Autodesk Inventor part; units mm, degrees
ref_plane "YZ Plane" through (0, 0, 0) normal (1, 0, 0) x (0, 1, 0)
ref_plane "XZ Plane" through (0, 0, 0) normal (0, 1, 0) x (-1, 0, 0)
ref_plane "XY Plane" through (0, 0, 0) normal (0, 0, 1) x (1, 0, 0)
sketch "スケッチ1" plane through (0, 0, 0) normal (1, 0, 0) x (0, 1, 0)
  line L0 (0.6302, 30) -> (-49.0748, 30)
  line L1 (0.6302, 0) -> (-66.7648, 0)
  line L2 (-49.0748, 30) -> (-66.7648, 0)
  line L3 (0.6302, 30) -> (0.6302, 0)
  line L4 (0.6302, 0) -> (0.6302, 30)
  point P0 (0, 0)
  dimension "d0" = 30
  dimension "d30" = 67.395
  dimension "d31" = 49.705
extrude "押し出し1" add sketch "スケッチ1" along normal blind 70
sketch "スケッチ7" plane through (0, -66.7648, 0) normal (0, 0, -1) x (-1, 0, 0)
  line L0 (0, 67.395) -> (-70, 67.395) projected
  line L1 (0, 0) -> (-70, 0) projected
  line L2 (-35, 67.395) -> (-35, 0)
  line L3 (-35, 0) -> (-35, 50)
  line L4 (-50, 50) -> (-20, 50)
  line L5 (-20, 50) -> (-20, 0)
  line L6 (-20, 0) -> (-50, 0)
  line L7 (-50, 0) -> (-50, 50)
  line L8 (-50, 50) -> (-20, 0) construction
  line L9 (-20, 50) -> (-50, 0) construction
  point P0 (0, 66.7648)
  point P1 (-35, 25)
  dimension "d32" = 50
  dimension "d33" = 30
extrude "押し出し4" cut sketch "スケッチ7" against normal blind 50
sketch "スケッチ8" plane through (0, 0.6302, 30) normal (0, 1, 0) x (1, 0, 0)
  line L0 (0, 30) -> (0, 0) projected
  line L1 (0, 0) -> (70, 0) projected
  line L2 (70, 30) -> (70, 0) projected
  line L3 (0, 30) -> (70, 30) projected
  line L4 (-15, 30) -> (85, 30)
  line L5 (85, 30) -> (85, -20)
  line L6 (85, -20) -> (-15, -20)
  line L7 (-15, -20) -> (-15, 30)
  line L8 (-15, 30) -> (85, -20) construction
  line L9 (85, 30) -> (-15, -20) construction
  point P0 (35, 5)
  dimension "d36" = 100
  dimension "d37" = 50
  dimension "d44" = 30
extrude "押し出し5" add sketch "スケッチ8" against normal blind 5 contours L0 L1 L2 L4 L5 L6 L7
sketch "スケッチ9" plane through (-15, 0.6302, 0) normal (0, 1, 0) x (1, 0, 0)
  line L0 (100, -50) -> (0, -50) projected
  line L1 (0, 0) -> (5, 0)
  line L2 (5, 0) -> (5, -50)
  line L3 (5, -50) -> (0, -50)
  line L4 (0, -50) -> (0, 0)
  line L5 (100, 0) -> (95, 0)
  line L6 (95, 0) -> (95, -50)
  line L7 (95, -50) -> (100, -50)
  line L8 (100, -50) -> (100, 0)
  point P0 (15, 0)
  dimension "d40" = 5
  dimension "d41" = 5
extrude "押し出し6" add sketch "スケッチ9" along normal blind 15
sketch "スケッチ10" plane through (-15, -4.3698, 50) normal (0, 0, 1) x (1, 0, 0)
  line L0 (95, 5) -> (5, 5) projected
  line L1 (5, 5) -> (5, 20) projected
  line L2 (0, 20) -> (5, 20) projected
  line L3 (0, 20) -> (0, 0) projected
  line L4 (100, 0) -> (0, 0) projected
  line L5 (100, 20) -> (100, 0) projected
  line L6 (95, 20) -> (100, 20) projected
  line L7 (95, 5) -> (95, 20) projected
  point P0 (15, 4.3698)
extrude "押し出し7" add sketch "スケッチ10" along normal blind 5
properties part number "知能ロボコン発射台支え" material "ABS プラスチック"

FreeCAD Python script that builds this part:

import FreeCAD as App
import Part
import Sketcher

V = App.Vector

doc = App.newDocument("Part")
body = doc.addObject("PartDesign::Body", "Body")

sketch1 = body.newObject("Sketcher::SketchObject", "Sketch")
sketch1.AttachmentSupport = (doc.getObject("YZ_Plane"), [""])
sketch1.MapMode = "FlatFace"
sketch1.addGeometry(Part.LineSegment(V(1, 0, 0), V(1, 30, 0)), False)
sketch1.addGeometry(Part.LineSegment(V(1, 30, 0), V(-49, 30, 0)), False)
sketch1.addGeometry(Part.LineSegment(V(-49, 30, 0), V(-67, 0, 0)), False)
sketch1.addGeometry(Part.LineSegment(V(-67, 0, 0), V(1, 0, 0)), False)
sketch1.addConstraint(Sketcher.Constraint("Coincident", 0, 2, 1, 1))
sketch1.addConstraint(Sketcher.Constraint("Coincident", 1, 2, 2, 1))
sketch1.addConstraint(Sketcher.Constraint("Coincident", 2, 2, 3, 1))
sketch1.addConstraint(Sketcher.Constraint("Coincident", 3, 2, 0, 1))
sketch1.addConstraint(Sketcher.Constraint("Vertical", 0))
sketch1.addConstraint(Sketcher.Constraint("Horizontal", 1))
sketch1.addConstraint(Sketcher.Constraint("Horizontal", 3))
sketch1.addConstraint(Sketcher.Constraint("PointOnObject", 2, 2, -1))
sketch1.addConstraint(Sketcher.Constraint("DistanceY", 0, 1, 0, 2, 30.0))
sketch1.addConstraint(Sketcher.Constraint("DistanceX", 1, 2, 1, 1, 49.705))
sketch1.addConstraint(Sketcher.Constraint("DistanceX", 3, 1, 3, 2, 67.395))
sketch1.addConstraint(Sketcher.Constraint("DistanceX", -1, 1, 0, 2, 0.6302))
pad1 = body.newObject("PartDesign::Pad", "Pad")
pad1.Profile = sketch1
pad1.Length = 70

sketch2 = body.newObject("Sketcher::SketchObject", "Sketch001")
sketch2.AttachmentSupport = (doc.getObject("XY_Plane"), [""])
sketch2.MapMode = "FlatFace"
sketch2.addGeometry(Part.LineSegment(V(20, -67, 0), V(20, -17, 0)), False)
sketch2.addGeometry(Part.LineSegment(V(20, -17, 0), V(50, -17, 0)), False)
sketch2.addGeometry(Part.LineSegment(V(50, -17, 0), V(50, -67, 0)), False)
sketch2.addGeometry(Part.LineSegment(V(50, -67, 0), V(20, -67, 0)), False)
sketch2.addConstraint(Sketcher.Constraint("Coincident", 0, 2, 1, 1))
sketch2.addConstraint(Sketcher.Constraint("Coincident", 1, 2, 2, 1))
sketch2.addConstraint(Sketcher.Constraint("Coincident", 2, 2, 3, 1))
sketch2.addConstraint(Sketcher.Constraint("Coincident", 3, 2, 0, 1))
sketch2.addConstraint(Sketcher.Constraint("Vertical", 0))
sketch2.addConstraint(Sketcher.Constraint("Horizontal", 1))
sketch2.addConstraint(Sketcher.Constraint("Vertical", 2))
sketch2.addConstraint(Sketcher.Constraint("Horizontal", 3))
sketch2.addConstraint(Sketcher.Constraint("DistanceX", 1, 1, 1, 2, 30.0))
sketch2.addConstraint(Sketcher.Constraint("DistanceY", 0, 1, 0, 2, 50.0))
sketch2.addConstraint(Sketcher.Constraint("DistanceX", -1, 1, 1, 2, 50.0))
sketch2.addConstraint(Sketcher.Constraint("DistanceY", 0, 2, -1, 1, 16.7648))
pocket1 = body.newObject("PartDesign::Pocket", "Pocket")
pocket1.Profile = sketch2
pocket1.Length = 50
pocket1.Reversed = True

sketch3 = body.newObject("Sketcher::SketchObject", "Sketch002")
sketch3.AttachmentSupport = (doc.getObject("XZ_Plane"), [""])
sketch3.MapMode = "FlatFace"
sketch3.AttachmentOffset = App.Placement(V(0, 0, -0.6302), App.Rotation())
sketch3.addGeometry(Part.LineSegment(V(0, 30, 0), V(0, 0, 0)), False)
sketch3.addGeometry(Part.LineSegment(V(0, 0, 0), V(-15, 0, 0)), False)
sketch3.addGeometry(Part.LineSegment(V(-15, 0, 0), V(-15, 50, 0)), False)
sketch3.addGeometry(Part.LineSegment(V(-15, 50, 0), V(85, 50, 0)), False)
sketch3.addGeometry(Part.LineSegment(V(85, 50, 0), V(85, 0, 0)), False)
sketch3.addGeometry(Part.LineSegment(V(85, 0, 0), V(70, 0, 0)), False)
sketch3.addGeometry(Part.LineSegment(V(70, 0, 0), V(70, 30, 0)), False)
sketch3.addGeometry(Part.LineSegment(V(70, 30, 0), V(0, 30, 0)), False)
sketch3.addConstraint(Sketcher.Constraint("Coincident", 0, 2, 1, 1))
sketch3.addConstraint(Sketcher.Constraint("Coincident", 1, 2, 2, 1))
sketch3.addConstraint(Sketcher.Constraint("Coincident", 2, 2, 3, 1))
sketch3.addConstraint(Sketcher.Constraint("Coincident", 3, 2, 4, 1))
sketch3.addConstraint(Sketcher.Constraint("Coincident", 4, 2, 5, 1))
sketch3.addConstraint(Sketcher.Constraint("Coincident", 5, 2, 6, 1))
sketch3.addConstraint(Sketcher.Constraint("Coincident", 6, 2, 7, 1))
sketch3.addConstraint(Sketcher.Constraint("Coincident", 7, 2, 0, 1))
sketch3.addConstraint(Sketcher.Constraint("Vertical", 0))
sketch3.addConstraint(Sketcher.Constraint("Horizontal", 1))
sketch3.addConstraint(Sketcher.Constraint("Vertical", 2))
sketch3.addConstraint(Sketcher.Constraint("Horizontal", 3))
sketch3.addConstraint(Sketcher.Constraint("Vertical", 4))
sketch3.addConstraint(Sketcher.Constraint("Horizontal", 5))
sketch3.addConstraint(Sketcher.Constraint("Vertical", 6))
sketch3.addConstraint(Sketcher.Constraint("Horizontal", 7))
sketch3.addConstraint(Sketcher.Constraint("Coincident", 0, 2, -1, 1))
sketch3.addConstraint(Sketcher.Constraint("PointOnObject", 4, 2, -1))
sketch3.addConstraint(Sketcher.Constraint("Equal", 1, 5))
sketch3.addConstraint(Sketcher.Constraint("DistanceX", 3, 1, 3, 2, 100.0))
sketch3.addConstraint(Sketcher.Constraint("DistanceY", 0, 2, 0, 1, 30.0))
sketch3.addConstraint(Sketcher.Constraint("DistanceY", 2, 1, 2, 2, 50.0))
sketch3.addConstraint(Sketcher.Constraint("DistanceX", 1, 2, 1, 1, 15.0))
pad2 = body.newObject("PartDesign::Pad", "Pad001")
pad2.Profile = sketch3
pad2.Length = 5

sketch4 = body.newObject("Sketcher::SketchObject", "Sketch003")
sketch4.AttachmentSupport = (doc.getObject("XZ_Plane"), [""])
sketch4.MapMode = "FlatFace"
sketch4.AttachmentOffset = App.Placement(V(0, 0, -0.6302), App.Rotation())
sketch4.addGeometry(Part.LineSegment(V(-15, 50, 0), V(-10, 50, 0)), False)
sketch4.addGeometry(Part.LineSegment(V(-10, 50, 0), V(-10, 0, 0)), False)
sketch4.addGeometry(Part.LineSegment(V(-10, 0, 0), V(-15, 0, 0)), False)
sketch4.addGeometry(Part.LineSegment(V(-15, 0, 0), V(-15, 50, 0)), False)
sketch4.addGeometry(Part.LineSegment(V(80, 50, 0), V(85, 50, 0)), False)
sketch4.addGeometry(Part.LineSegment(V(85, 50, 0), V(85, 0, 0)), False)
sketch4.addGeometry(Part.LineSegment(V(85, 0, 0), V(80, 0, 0)), False)
sketch4.addGeometry(Part.LineSegment(V(80, 0, 0), V(80, 50, 0)), False)
sketch4.addConstraint(Sketcher.Constraint("Coincident", 0, 2, 1, 1))
sketch4.addConstraint(Sketcher.Constraint("Coincident", 1, 2, 2, 1))
sketch4.addConstraint(Sketcher.Constraint("Coincident", 2, 2, 3, 1))
sketch4.addConstraint(Sketcher.Constraint("Coincident", 3, 2, 0, 1))
sketch4.addConstraint(Sketcher.Constraint("Coincident", 4, 2, 5, 1))
sketch4.addConstraint(Sketcher.Constraint("Coincident", 5, 2, 6, 1))
sketch4.addConstraint(Sketcher.Constraint("Coincident", 6, 2, 7, 1))
sketch4.addConstraint(Sketcher.Constraint("Coincident", 7, 2, 4, 1))
sketch4.addConstraint(Sketcher.Constraint("Horizontal", 0))
sketch4.addConstraint(Sketcher.Constraint("Vertical", 1))
sketch4.addConstraint(Sketcher.Constraint("Horizontal", 2))
sketch4.addConstraint(Sketcher.Constraint("Vertical", 3))
sketch4.addConstraint(Sketcher.Constraint("Horizontal", 4))
sketch4.addConstraint(Sketcher.Constraint("Vertical", 5))
sketch4.addConstraint(Sketcher.Constraint("Horizontal", 6))
sketch4.addConstraint(Sketcher.Constraint("Vertical", 7))
sketch4.addConstraint(Sketcher.Constraint("PointOnObject", 1, 2, -1))
sketch4.addConstraint(Sketcher.Constraint("PointOnObject", 5, 2, -1))
sketch4.addConstraint(Sketcher.Constraint("Horizontal", 3, 2, 4, 2))
sketch4.addConstraint(Sketcher.Constraint("Equal", 2, 4))
sketch4.addConstraint(Sketcher.Constraint("DistanceX", 0, 1, 0, 2, 5.0))
sketch4.addConstraint(Sketcher.Constraint("DistanceY", 1, 2, 1, 1, 50.0))
sketch4.addConstraint(Sketcher.Constraint("DistanceX", 0, 2, -1, 1, 10.0))
sketch4.addConstraint(Sketcher.Constraint("DistanceX", -1, 1, 4, 2, 85.0))
pad3 = body.newObject("PartDesign::Pad", "Pad002")
pad3.Profile = sketch4
pad3.Length = 15
pad3.Reversed = True

sketch5 = body.newObject("Sketcher::SketchObject", "Sketch004")
sketch5.AttachmentSupport = (doc.getObject("XY_Plane"), [""])
sketch5.MapMode = "FlatFace"
sketch5.AttachmentOffset = App.Placement(V(0, 0, 50), App.Rotation())
sketch5.addGeometry(Part.LineSegment(V(80, 16, 0), V(80, 1, 0)), False)
sketch5.addGeometry(Part.LineSegment(V(80, 1, 0), V(-10, 1, 0)), False)
sketch5.addGeometry(Part.LineSegment(V(-10, 1, 0), V(-10, 16, 0)), False)
sketch5.addGeometry(Part.LineSegment(V(-10, 16, 0), V(-15, 16, 0)), False)
sketch5.addGeometry(Part.LineSegment(V(-15, 16, 0), V(-15, -4, 0)), False)
sketch5.addGeometry(Part.LineSegment(V(-15, -4, 0), V(85, -4, 0)), False)
sketch5.addGeometry(Part.LineSegment(V(85, -4, 0), V(85, 16, 0)), False)
sketch5.addGeometry(Part.LineSegment(V(85, 16, 0), V(80, 16, 0)), False)
sketch5.addConstraint(Sketcher.Constraint("Coincident", 0, 2, 1, 1))
sketch5.addConstraint(Sketcher.Constraint("Coincident", 1, 2, 2, 1))
sketch5.addConstraint(Sketcher.Constraint("Coincident", 2, 2, 3, 1))
sketch5.addConstraint(Sketcher.Constraint("Coincident", 3, 2, 4, 1))
sketch5.addConstraint(Sketcher.Constraint("Coincident", 4, 2, 5, 1))
sketch5.addConstraint(Sketcher.Constraint("Coincident", 5, 2, 6, 1))
sketch5.addConstraint(Sketcher.Constraint("Coincident", 6, 2, 7, 1))
sketch5.addConstraint(Sketcher.Constraint("Coincident", 7, 2, 0, 1))
sketch5.addConstraint(Sketcher.Constraint("Vertical", 0))
sketch5.addConstraint(Sketcher.Constraint("Horizontal", 1))
sketch5.addConstraint(Sketcher.Constraint("Vertical", 2))
sketch5.addConstraint(Sketcher.Constraint("Horizontal", 3))
sketch5.addConstraint(Sketcher.Constraint("Vertical", 4))
sketch5.addConstraint(Sketcher.Constraint("Horizontal", 5))
sketch5.addConstraint(Sketcher.Constraint("Vertical", 6))
sketch5.addConstraint(Sketcher.Constraint("Horizontal", 7))
sketch5.addConstraint(Sketcher.Constraint("Horizontal", 3, 2, 6, 2))
sketch5.addConstraint(Sketcher.Constraint("Equal", 3, 7))
sketch5.addConstraint(Sketcher.Constraint("DistanceX", 1, 2, 1, 1, 90.0))
sketch5.addConstraint(Sketcher.Constraint("DistanceX", 3, 2, 3, 1, 5.0))
sketch5.addConstraint(Sketcher.Constraint("DistanceY", 0, 2, 0, 1, 15.0))
sketch5.addConstraint(Sketcher.Constraint("DistanceY", 4, 2, 4, 1, 20.0))
sketch5.addConstraint(Sketcher.Constraint("DistanceX", -1, 1, 0, 2, 80.0))
sketch5.addConstraint(Sketcher.Constraint("DistanceY", -1, 1, 0, 2, 0.6302))
pad4 = body.newObject("PartDesign::Pad", "Pad003")
pad4.Profile = sketch5
pad4.Length = 5

doc.recompute()
